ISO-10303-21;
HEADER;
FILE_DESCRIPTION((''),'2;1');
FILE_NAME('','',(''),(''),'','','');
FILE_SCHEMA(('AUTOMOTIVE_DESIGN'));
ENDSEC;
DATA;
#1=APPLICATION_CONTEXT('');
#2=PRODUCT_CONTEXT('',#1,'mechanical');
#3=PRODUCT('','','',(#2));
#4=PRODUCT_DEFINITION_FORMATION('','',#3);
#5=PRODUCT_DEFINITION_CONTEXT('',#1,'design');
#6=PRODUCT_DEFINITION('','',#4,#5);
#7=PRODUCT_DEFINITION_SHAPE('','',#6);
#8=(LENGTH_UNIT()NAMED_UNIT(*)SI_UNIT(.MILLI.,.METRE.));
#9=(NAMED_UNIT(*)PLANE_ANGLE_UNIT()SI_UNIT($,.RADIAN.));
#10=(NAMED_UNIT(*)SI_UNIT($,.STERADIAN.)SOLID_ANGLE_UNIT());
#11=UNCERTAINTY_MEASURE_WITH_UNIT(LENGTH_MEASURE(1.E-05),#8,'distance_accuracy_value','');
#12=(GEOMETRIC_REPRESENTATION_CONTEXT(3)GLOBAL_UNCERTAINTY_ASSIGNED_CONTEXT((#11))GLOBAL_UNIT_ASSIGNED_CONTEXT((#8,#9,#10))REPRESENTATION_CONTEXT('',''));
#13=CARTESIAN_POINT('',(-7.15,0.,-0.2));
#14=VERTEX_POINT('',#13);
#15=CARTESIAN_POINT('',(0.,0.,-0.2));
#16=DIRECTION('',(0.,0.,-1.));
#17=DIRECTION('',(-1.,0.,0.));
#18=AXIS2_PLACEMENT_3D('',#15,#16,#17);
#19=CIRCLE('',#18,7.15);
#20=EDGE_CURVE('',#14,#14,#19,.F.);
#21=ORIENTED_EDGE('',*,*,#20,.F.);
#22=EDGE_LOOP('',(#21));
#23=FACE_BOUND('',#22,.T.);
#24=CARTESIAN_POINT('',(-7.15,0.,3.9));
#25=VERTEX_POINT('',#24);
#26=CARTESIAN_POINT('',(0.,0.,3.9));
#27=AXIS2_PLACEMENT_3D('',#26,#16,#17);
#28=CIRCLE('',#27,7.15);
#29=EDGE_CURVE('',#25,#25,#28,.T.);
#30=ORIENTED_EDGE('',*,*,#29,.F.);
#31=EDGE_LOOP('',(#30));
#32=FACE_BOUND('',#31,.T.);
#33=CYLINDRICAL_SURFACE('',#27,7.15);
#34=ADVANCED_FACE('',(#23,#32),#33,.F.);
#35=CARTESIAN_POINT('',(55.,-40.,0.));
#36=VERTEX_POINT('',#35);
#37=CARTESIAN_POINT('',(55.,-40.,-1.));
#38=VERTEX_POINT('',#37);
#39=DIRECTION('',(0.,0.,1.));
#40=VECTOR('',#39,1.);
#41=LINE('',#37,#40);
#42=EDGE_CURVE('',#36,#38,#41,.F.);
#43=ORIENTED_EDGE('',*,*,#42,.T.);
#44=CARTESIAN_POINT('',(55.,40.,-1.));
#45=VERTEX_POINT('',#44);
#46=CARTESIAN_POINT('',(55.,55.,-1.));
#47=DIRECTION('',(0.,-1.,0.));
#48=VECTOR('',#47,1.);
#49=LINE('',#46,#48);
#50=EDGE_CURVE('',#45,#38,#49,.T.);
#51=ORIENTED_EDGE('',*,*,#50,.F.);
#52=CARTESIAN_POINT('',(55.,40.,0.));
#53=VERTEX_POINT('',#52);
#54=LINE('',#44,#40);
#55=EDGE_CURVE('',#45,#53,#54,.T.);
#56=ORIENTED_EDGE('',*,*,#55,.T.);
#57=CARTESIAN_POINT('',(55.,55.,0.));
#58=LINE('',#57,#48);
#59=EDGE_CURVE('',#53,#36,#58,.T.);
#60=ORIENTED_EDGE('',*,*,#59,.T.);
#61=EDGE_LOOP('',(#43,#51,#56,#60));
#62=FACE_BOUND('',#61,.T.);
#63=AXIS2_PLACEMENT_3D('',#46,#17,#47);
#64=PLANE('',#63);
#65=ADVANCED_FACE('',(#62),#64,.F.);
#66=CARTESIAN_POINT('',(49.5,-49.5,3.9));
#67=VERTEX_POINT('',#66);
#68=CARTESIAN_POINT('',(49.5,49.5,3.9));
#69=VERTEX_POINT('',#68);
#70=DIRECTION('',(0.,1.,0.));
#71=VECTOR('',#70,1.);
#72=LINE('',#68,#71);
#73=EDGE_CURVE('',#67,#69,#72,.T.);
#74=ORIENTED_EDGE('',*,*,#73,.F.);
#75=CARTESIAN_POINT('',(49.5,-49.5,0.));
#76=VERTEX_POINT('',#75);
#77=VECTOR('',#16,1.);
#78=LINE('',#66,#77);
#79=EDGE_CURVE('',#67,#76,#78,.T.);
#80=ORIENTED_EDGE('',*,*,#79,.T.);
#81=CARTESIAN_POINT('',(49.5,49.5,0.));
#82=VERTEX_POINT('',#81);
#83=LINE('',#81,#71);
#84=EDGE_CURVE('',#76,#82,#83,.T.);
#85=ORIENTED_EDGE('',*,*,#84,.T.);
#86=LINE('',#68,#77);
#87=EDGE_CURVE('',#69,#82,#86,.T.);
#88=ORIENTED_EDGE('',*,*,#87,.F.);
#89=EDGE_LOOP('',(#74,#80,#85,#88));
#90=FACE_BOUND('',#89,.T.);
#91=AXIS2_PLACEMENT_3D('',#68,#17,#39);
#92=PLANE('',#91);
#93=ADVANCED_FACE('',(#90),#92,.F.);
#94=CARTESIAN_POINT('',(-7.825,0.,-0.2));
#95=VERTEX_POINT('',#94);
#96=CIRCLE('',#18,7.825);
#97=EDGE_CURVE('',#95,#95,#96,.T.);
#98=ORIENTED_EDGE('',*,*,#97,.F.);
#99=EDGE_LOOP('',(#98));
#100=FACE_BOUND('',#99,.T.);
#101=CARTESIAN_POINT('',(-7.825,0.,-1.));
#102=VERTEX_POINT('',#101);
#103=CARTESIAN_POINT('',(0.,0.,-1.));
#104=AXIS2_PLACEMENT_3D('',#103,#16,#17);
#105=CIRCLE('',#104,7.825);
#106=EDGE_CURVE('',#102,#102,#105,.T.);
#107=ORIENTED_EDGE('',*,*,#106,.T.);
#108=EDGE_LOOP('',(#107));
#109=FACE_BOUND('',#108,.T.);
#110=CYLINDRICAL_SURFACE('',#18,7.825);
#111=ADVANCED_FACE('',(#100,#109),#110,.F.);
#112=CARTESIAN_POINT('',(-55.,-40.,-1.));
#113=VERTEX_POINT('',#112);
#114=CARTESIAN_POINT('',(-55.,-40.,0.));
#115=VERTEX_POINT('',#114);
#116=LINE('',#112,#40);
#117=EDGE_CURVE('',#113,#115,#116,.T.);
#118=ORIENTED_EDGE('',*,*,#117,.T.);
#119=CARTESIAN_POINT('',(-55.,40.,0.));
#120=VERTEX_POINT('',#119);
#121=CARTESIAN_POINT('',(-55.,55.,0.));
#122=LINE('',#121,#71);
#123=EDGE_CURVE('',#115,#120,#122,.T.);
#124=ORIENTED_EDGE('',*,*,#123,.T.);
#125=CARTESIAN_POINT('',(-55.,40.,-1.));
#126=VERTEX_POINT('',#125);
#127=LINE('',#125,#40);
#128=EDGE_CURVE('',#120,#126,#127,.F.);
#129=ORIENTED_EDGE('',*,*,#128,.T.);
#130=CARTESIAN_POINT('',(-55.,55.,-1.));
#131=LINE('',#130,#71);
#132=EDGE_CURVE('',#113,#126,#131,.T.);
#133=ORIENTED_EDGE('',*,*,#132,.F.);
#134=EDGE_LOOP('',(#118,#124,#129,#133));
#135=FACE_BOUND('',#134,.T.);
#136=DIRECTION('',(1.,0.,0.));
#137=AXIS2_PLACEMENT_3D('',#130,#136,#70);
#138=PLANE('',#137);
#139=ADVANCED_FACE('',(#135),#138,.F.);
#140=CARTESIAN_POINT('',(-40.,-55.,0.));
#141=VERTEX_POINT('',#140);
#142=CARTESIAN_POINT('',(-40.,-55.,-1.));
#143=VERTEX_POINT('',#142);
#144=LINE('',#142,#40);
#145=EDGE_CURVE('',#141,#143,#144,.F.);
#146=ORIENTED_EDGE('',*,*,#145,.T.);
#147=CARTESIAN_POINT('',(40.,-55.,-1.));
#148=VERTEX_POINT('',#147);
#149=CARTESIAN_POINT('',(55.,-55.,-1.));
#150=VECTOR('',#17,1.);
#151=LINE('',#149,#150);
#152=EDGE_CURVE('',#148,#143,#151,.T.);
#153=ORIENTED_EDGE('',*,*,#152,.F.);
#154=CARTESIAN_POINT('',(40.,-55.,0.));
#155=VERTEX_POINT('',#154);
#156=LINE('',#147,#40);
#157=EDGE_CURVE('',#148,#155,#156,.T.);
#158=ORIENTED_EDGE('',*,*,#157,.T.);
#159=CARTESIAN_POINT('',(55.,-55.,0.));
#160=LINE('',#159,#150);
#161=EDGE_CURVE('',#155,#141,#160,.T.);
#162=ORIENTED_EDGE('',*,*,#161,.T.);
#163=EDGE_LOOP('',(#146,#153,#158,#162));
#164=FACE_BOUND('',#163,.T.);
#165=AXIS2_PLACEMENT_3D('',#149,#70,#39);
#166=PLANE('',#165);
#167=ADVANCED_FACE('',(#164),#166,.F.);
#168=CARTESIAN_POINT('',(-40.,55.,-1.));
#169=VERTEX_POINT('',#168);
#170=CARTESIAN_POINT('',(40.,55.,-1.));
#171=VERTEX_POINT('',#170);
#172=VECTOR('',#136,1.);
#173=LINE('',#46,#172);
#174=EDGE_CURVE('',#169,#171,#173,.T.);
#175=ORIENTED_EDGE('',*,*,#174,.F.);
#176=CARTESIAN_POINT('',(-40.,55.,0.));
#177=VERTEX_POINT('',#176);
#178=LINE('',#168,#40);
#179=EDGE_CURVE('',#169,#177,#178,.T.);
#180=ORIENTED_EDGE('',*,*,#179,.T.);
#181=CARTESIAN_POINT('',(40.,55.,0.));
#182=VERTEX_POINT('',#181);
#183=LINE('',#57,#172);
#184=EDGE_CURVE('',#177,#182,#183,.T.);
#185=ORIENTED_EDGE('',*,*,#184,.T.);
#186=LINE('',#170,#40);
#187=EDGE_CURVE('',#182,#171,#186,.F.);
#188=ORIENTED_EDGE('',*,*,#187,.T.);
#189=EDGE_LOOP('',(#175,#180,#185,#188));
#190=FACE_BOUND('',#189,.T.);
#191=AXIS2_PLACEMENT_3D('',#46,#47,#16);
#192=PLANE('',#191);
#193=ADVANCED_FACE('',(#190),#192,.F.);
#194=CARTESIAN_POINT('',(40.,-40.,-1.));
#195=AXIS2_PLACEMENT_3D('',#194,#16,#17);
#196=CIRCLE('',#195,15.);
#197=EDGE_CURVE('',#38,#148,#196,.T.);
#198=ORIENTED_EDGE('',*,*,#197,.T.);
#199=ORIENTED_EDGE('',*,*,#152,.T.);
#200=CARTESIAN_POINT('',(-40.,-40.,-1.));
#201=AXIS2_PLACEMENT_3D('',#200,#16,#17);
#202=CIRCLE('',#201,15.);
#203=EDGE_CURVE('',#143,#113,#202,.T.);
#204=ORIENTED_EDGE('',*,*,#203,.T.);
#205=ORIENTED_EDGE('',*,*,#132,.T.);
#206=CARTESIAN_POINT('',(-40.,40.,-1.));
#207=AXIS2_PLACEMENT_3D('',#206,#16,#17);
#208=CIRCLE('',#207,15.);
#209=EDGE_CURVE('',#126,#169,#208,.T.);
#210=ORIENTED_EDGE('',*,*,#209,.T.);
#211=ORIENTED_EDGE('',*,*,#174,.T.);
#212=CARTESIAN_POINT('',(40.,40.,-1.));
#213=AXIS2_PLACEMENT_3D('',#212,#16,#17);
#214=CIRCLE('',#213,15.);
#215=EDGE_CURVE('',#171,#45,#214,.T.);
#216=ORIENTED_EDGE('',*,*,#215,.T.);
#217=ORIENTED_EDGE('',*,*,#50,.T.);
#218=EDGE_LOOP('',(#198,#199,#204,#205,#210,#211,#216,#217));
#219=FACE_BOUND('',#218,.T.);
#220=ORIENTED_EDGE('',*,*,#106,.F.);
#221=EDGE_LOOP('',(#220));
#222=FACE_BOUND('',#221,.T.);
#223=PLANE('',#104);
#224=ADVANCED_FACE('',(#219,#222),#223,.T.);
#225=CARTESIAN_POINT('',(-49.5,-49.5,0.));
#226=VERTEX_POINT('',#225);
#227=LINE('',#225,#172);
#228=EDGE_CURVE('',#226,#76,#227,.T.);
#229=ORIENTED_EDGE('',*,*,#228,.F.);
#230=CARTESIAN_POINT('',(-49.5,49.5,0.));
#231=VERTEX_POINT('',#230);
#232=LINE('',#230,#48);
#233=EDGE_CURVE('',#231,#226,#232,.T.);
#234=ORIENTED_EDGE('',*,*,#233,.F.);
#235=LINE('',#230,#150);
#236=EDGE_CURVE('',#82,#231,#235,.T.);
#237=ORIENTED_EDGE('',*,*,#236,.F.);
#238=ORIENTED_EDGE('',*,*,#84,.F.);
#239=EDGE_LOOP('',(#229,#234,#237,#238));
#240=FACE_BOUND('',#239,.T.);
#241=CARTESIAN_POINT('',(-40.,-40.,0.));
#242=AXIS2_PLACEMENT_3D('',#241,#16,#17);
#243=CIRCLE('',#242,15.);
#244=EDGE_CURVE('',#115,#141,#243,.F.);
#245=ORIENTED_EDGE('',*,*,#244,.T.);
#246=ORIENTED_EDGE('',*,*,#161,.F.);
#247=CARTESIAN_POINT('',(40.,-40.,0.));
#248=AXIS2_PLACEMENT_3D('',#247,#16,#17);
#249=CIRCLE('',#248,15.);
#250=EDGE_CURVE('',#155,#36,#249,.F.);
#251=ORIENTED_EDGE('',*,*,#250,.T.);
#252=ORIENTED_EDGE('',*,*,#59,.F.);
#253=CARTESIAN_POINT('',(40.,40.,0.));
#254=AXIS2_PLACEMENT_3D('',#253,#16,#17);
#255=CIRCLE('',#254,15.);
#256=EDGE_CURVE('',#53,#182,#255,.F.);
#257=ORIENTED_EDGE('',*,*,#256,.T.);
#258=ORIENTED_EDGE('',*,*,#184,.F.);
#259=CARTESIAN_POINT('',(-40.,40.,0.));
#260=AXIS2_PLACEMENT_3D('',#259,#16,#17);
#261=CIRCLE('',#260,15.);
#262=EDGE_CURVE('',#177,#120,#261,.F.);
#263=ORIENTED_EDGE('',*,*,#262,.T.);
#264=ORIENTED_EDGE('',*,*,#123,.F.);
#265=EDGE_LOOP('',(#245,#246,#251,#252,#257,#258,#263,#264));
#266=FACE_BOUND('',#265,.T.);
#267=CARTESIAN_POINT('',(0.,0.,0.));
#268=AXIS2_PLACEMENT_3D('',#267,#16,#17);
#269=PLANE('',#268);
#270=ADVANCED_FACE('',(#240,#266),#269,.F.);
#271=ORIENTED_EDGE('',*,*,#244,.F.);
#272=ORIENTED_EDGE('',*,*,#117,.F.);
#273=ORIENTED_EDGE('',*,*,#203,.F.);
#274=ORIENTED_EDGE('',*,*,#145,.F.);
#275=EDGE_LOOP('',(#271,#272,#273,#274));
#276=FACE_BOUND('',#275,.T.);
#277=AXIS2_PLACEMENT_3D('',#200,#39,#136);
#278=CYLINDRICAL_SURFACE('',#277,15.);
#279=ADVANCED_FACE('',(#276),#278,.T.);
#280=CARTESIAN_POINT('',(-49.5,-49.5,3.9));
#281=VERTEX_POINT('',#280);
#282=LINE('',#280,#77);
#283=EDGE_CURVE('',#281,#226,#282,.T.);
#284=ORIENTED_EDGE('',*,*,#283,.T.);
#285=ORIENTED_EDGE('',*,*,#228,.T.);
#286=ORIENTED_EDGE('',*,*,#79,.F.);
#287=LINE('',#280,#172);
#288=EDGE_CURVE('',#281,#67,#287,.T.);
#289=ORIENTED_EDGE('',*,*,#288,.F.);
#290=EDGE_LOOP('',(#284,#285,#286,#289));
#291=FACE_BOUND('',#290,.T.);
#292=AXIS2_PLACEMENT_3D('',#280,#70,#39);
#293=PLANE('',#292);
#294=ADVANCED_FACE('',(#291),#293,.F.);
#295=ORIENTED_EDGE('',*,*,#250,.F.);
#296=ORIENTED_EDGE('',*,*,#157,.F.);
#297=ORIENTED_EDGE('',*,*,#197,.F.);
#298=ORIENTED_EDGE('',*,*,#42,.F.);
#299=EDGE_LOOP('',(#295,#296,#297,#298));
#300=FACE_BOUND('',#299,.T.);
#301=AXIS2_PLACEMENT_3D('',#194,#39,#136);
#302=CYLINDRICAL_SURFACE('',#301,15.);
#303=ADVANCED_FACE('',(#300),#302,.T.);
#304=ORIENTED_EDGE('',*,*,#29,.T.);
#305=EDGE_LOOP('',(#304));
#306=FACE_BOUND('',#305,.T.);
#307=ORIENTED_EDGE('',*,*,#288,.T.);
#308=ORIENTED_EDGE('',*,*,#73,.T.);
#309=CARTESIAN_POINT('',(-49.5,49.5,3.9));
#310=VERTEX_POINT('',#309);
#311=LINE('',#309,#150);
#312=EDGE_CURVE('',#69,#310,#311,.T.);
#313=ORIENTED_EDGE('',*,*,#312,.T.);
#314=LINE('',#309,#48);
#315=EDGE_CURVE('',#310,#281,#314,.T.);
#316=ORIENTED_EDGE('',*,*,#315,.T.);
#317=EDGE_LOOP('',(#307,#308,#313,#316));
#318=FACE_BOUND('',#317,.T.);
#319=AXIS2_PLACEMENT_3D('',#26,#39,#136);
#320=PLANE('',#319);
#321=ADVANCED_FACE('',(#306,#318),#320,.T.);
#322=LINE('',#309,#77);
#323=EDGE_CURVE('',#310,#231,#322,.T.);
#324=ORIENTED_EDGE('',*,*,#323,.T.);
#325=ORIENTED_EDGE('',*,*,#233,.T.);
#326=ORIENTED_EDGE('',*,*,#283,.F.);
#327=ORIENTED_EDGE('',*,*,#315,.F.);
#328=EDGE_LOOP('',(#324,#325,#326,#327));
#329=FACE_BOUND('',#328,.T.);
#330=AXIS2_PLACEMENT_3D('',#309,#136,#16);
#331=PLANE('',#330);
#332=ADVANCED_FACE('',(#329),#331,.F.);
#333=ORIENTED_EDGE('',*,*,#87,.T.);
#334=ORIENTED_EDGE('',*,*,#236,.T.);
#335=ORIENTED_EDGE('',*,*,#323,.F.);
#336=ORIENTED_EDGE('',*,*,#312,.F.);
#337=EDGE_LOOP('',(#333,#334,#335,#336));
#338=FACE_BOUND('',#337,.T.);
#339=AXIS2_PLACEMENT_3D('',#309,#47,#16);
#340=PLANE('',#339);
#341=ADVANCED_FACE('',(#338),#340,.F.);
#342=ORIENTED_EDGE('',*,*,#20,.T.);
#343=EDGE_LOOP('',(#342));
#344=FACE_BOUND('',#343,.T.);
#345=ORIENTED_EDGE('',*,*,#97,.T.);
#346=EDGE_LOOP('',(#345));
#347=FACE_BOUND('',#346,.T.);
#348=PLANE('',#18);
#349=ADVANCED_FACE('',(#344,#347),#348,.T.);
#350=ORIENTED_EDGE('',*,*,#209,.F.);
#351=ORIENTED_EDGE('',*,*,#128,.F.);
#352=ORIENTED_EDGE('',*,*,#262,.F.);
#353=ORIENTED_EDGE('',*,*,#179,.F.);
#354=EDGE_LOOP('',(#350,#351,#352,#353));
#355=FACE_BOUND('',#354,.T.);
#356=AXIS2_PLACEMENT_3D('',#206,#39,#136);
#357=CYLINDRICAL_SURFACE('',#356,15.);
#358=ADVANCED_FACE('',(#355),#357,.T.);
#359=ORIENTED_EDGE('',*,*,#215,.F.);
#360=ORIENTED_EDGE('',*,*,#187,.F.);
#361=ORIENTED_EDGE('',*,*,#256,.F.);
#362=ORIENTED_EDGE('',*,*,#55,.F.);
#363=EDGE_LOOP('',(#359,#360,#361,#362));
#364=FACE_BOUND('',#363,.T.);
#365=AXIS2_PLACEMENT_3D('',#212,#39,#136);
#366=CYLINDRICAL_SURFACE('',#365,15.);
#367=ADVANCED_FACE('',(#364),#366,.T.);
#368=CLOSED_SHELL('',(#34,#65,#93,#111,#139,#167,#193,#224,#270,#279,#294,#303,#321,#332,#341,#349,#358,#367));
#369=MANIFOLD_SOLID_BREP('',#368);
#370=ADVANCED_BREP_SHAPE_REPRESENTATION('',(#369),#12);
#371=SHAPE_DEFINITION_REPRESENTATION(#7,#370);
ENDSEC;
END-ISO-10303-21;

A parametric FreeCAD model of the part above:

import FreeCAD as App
import Part
import Sketcher
Q = App.Units.Quantity


def edges_at(feature, points):
    """Names of the edges that pass closest to the given points."""
    edges = feature.Shape.Edges
    near = lambda p: min(range(len(edges)), key=lambda i: edges[i].distToShape(Part.Vertex(*p))[0])
    return sorted({f"Edge{near(p) + 1}" for p in points})


def add_polygon(sketch, points):
    """Adds a closed chain of lines whose ends are joined by coincident constraints."""
    first, n = sketch.GeometryCount, len(points)
    for a, b in zip(points, points[1:] + points[:1]):
        sketch.addGeometry(Part.LineSegment(App.Vector(*a, 0), App.Vector(*b, 0)), False)
    for i in range(n):
        sketch.addConstraint(Sketcher.Constraint("Coincident", first + i, 2, first + (i + 1) % n, 1))

doc = App.newDocument("Part")
body = doc.addObject("PartDesign::Body", "Body")

sketch1 = doc.addObject("Sketcher::SketchObject", "Sketch")
body.addObject(sketch1)
sketch1.AttachmentSupport = (doc.XY_Plane, [""])
sketch1.MapMode = "FlatFace"
add_polygon(sketch1, [(-50, 50), (-50, -50), (50, -50), (50, 50)])
sketch1.addConstraint([
    Sketcher.Constraint("Vertical", 0),
    Sketcher.Constraint("Horizontal", 1),
    Sketcher.Constraint("Vertical", 2),
    Sketcher.Constraint("Horizontal", 3),
    Sketcher.Constraint("Symmetric", 0, 2, 2, 2, -1, 1),
    Sketcher.Constraint("Equal", 3, 0),
    Sketcher.Constraint("DistanceX", 1, 1, 1, 2, Q("99 mm")),
])
pad1 = doc.addObject("PartDesign::Pad", "Pad")
body.addObject(pad1)
pad1.Profile = sketch1
pad1.Length = 3.9

sketch2 = doc.addObject("Sketcher::SketchObject", "Sketch001")
body.addObject(sketch2)
sketch2.AttachmentSupport = (doc.XY_Plane, [""])
sketch2.MapMode = "FlatFace"
add_polygon(sketch2, [(55, 55), (55, -55), (-55, -55), (-55, 55)])
sketch2.addConstraint([
    Sketcher.Constraint("Vertical", 0),
    Sketcher.Constraint("Horizontal", 1),
    Sketcher.Constraint("Vertical", 2),
    Sketcher.Constraint("Horizontal", 3),
    Sketcher.Constraint("Symmetric", 0, 2, 2, 2, -1, 1),
    Sketcher.Constraint("Equal", 3, 0),
    Sketcher.Constraint("DistanceX", 1, 2, 1, 1, Q("110 mm")),
])
pad2 = doc.addObject("PartDesign::Pad", "Pad001")
body.addObject(pad2)
pad2.Profile = sketch2
pad2.Length = 1
pad2.Reversed = True

sketch3 = doc.addObject("Sketcher::SketchObject", "Sketch002")
body.addObject(sketch3)
sketch3.AttachmentSupport = (doc.XY_Plane, [""])
sketch3.MapMode = "FlatFace"
sketch3.AttachmentOffset = App.Placement(App.Vector(0, 0, -1), App.Rotation())
sketch3.addGeometry(Part.Circle(App.Vector(0, 0, 0), App.Vector(0, 0, 1), 7), False)
sketch3.addConstraint([
    Sketcher.Constraint("Coincident", 0, 3, -1, 1),
    Sketcher.Constraint("Diameter", 0, Q("14.3 mm")),
])
pocket1 = doc.addObject("PartDesign::Pocket", "Pocket")
body.addObject(pocket1)
pocket1.Profile = sketch3
pocket1.Type = "ThroughAll"
pocket1.Reversed = True

sketch4 = doc.addObject("Sketcher::SketchObject", "Sketch003")
body.addObject(sketch4)
sketch4.AttachmentSupport = (doc.XY_Plane, [""])
sketch4.MapMode = "FlatFace"
sketch4.AttachmentOffset = App.Placement(App.Vector(0, 0, -1), App.Rotation())
sketch4.addGeometry(Part.Circle(App.Vector(0, 0, 0), App.Vector(0, 0, 1), 8), False)
sketch4.addConstraint([
    Sketcher.Constraint("Coincident", 0, 3, -1, 1),
    Sketcher.Constraint("Diameter", 0, Q("15.65 mm")),
])
pocket2 = doc.addObject("PartDesign::Pocket", "Pocket001")
body.addObject(pocket2)
pocket2.Profile = sketch4
pocket2.Length = 0.8
pocket2.Reversed = True
doc.recompute()

fillet = doc.addObject("PartDesign::Fillet", "Fillet")
body.addObject(fillet)
fillet.Base = (pocket2, edges_at(pocket2, [
    (-55, -55, -0.5),
    (-55, 55, -0.5),
    (55, 55, -0.5),
    (55, -55, -0.5),
]))
fillet.Radius = 15

doc.recompute()
